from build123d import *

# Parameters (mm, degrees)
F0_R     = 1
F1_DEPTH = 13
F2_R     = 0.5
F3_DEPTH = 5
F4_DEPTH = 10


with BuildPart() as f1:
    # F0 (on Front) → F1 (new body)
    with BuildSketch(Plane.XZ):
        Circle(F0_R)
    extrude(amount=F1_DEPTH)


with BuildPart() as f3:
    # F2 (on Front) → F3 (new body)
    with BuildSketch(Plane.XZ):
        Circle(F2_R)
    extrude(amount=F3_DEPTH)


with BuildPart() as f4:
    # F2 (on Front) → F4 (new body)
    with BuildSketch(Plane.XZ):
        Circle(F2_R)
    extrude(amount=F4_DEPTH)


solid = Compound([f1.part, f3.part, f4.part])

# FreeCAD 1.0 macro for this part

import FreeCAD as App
import Part
import Sketcher

V = App.Vector

doc = App.newDocument("Part")
body = doc.addObject("PartDesign::Body", "Body")

sketch1 = doc.addObject("Sketcher::SketchObject", "Sketch")
body.addObject(sketch1)
sketch1.AttachmentSupport = (doc.XZ_Plane, [""])
sketch1.MapMode = "FlatFace"
sketch1.addGeometry(Part.Circle(V(0, 0, 0), V(0, 0, 1), 1), False)
sketch1.addConstraint([
    Sketcher.Constraint("Coincident", 0, 3, -1, 1),
    Sketcher.Constraint("Diameter", 0, 2.0),
])
pad1 = doc.addObject("PartDesign::Pad", "Pad")
body.addObject(pad1)
pad1.Profile = sketch1
pad1.Length = 13
body2 = doc.addObject("PartDesign::Body", "Body001")

sketch2 = doc.addObject("Sketcher::SketchObject", "Sketch001")
body2.addObject(sketch2)
sketch2.AttachmentSupport = (doc.getObject("XZ_Plane001"), [""])
sketch2.MapMode = "FlatFace"
sketch2.addGeometry(Part.Circle(V(0, 0, 0), V(0, 0, 1), 0.5), False)
sketch2.addConstraint([
    Sketcher.Constraint("Coincident", 0, 3, -1, 1),
    Sketcher.Constraint("Diameter", 0, 1.0),
])
pad2 = doc.addObject("PartDesign::Pad", "Pad001")
body2.addObject(pad2)
pad2.Profile = sketch2
pad2.Length = 5
body3 = doc.addObject("PartDesign::Body", "Body002")

sketch3 = doc.addObject("Sketcher::SketchObject", "Sketch002")
body3.addObject(sketch3)
sketch3.AttachmentSupport = (doc.getObject("XZ_Plane002"), [""])
sketch3.MapMode = "FlatFace"
sketch3.addGeometry(Part.Circle(V(0, 0, 0), V(0, 0, 1), 0.5), False)
sketch3.addConstraint([
    Sketcher.Constraint("Coincident", 0, 3, -1, 1),
    Sketcher.Constraint("Diameter", 0, 1.0),
])
pad3 = doc.addObject("PartDesign::Pad", "Pad002")
body3.addObject(pad3)
pad3.Profile = sketch3
pad3.Length = 10

doc.recompute()
